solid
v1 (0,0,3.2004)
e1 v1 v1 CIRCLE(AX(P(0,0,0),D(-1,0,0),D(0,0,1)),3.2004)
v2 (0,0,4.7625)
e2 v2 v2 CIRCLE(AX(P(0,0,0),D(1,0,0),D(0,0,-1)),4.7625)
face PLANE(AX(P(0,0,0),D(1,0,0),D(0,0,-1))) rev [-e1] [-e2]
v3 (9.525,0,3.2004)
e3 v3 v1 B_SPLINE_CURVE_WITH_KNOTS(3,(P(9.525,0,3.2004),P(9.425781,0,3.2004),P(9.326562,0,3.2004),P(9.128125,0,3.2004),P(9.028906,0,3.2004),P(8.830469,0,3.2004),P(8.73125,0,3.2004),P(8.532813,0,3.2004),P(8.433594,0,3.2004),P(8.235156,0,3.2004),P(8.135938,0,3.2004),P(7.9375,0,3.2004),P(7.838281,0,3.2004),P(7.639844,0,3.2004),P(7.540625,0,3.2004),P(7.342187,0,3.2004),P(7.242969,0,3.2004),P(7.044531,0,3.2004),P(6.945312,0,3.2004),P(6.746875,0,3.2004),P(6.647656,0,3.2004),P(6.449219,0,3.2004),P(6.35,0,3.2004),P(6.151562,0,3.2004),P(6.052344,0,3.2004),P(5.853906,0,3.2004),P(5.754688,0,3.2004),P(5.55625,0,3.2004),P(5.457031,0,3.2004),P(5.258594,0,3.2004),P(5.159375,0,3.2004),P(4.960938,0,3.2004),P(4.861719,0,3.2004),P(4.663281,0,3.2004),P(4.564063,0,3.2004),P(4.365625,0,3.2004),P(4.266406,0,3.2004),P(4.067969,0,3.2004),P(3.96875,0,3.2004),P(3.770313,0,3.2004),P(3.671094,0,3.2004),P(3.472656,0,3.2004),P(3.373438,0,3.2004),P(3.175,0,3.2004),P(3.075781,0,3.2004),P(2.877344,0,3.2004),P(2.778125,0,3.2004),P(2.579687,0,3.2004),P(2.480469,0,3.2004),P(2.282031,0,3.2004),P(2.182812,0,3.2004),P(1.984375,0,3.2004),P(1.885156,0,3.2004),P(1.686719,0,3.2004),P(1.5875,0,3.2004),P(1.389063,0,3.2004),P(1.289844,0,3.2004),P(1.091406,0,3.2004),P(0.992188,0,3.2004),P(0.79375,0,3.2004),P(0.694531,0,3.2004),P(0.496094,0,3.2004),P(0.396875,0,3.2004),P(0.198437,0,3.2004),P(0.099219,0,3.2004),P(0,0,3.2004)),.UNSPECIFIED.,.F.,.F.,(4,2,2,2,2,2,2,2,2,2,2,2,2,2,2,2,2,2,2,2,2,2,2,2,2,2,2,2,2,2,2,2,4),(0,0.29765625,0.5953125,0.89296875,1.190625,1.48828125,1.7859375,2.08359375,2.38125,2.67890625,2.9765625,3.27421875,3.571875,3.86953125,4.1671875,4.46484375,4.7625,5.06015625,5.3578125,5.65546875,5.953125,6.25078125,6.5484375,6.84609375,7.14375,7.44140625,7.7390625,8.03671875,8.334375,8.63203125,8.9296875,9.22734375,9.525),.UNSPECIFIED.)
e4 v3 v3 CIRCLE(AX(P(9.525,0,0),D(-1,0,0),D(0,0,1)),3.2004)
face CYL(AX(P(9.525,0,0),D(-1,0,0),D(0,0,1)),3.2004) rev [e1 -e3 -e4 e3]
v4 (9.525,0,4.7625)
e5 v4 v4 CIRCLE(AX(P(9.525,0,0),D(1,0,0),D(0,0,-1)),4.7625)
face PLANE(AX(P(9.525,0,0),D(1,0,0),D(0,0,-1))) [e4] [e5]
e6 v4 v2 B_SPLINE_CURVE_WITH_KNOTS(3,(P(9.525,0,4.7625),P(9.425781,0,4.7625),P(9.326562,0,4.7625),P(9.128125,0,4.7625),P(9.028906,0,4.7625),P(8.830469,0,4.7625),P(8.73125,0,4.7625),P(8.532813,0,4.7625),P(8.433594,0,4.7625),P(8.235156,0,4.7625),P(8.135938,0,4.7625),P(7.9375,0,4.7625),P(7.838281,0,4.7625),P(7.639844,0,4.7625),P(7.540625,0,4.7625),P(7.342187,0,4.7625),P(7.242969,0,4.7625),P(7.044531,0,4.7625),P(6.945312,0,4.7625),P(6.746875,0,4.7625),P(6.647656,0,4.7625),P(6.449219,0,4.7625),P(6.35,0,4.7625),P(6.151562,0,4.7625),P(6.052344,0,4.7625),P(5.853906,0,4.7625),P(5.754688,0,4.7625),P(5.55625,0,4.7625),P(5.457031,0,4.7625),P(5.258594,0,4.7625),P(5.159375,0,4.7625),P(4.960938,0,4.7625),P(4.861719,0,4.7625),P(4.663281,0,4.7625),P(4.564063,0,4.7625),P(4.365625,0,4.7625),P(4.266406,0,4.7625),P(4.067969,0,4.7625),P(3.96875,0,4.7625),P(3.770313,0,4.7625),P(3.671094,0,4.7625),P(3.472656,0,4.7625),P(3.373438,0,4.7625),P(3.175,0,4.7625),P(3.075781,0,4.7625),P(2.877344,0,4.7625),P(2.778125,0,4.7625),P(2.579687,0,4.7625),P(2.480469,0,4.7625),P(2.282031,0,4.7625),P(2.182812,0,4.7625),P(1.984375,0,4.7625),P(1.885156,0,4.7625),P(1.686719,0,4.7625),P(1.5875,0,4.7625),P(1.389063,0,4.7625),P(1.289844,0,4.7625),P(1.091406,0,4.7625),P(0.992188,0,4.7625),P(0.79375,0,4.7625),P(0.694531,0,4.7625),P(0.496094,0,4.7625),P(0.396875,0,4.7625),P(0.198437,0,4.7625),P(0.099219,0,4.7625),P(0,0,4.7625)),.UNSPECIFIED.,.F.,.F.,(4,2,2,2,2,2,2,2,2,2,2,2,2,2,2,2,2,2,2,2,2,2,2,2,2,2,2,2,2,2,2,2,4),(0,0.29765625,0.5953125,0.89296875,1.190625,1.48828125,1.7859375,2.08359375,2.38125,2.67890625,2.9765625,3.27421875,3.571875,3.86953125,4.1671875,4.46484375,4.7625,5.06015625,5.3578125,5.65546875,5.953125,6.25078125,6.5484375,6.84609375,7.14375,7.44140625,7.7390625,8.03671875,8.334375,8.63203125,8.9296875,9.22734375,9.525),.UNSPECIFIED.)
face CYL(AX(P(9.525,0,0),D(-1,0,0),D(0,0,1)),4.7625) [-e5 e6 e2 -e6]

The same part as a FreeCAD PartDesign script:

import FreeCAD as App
import Part
import Sketcher
Q = App.Units.Quantity

doc = App.newDocument("Part")
body = doc.addObject("PartDesign::Body", "Body")

# Sketch on YZ plane
sketch1 = body.newObject("Sketcher::SketchObject", "Sketch")
sketch1.AttachmentSupport = (doc.getObject("YZ_Plane"), [""])
sketch1.MapMode = "FlatFace"
sketch1.addGeometry(Part.Circle(App.Vector(0, 0, 0), App.Vector(0, 0, 1), 4.8), False)
sketch1.addConstraint([
    Sketcher.Constraint("Coincident", 0, 3, -1, 1),
    Sketcher.Constraint("Diameter", 0, Q("0.375 in")),
])
pad1 = body.newObject("PartDesign::Pad", "Pad")
pad1.Profile = sketch1
pad1.Length = Q("0.375 in")

# Sketch on YZ plane
sketch2 = body.newObject("Sketcher::SketchObject", "Sketch001")
sketch2.AttachmentSupport = (doc.getObject("YZ_Plane"), [""])
sketch2.MapMode = "FlatFace"
sketch2.addGeometry(Part.Circle(App.Vector(0, 0, 0), App.Vector(0, 0, 1), 3.2), False)
sketch2.addConstraint([
    Sketcher.Constraint("Coincident", 0, 3, -1, 1),
    Sketcher.Constraint("Diameter", 0, Q("0.252 in")),
])
pocket1 = body.newObject("PartDesign::Pocket", "Pocket")
pocket1.Profile = sketch2
pocket1.Length = Q("0.375 in")
pocket1.Reversed = True

doc.recompute()
